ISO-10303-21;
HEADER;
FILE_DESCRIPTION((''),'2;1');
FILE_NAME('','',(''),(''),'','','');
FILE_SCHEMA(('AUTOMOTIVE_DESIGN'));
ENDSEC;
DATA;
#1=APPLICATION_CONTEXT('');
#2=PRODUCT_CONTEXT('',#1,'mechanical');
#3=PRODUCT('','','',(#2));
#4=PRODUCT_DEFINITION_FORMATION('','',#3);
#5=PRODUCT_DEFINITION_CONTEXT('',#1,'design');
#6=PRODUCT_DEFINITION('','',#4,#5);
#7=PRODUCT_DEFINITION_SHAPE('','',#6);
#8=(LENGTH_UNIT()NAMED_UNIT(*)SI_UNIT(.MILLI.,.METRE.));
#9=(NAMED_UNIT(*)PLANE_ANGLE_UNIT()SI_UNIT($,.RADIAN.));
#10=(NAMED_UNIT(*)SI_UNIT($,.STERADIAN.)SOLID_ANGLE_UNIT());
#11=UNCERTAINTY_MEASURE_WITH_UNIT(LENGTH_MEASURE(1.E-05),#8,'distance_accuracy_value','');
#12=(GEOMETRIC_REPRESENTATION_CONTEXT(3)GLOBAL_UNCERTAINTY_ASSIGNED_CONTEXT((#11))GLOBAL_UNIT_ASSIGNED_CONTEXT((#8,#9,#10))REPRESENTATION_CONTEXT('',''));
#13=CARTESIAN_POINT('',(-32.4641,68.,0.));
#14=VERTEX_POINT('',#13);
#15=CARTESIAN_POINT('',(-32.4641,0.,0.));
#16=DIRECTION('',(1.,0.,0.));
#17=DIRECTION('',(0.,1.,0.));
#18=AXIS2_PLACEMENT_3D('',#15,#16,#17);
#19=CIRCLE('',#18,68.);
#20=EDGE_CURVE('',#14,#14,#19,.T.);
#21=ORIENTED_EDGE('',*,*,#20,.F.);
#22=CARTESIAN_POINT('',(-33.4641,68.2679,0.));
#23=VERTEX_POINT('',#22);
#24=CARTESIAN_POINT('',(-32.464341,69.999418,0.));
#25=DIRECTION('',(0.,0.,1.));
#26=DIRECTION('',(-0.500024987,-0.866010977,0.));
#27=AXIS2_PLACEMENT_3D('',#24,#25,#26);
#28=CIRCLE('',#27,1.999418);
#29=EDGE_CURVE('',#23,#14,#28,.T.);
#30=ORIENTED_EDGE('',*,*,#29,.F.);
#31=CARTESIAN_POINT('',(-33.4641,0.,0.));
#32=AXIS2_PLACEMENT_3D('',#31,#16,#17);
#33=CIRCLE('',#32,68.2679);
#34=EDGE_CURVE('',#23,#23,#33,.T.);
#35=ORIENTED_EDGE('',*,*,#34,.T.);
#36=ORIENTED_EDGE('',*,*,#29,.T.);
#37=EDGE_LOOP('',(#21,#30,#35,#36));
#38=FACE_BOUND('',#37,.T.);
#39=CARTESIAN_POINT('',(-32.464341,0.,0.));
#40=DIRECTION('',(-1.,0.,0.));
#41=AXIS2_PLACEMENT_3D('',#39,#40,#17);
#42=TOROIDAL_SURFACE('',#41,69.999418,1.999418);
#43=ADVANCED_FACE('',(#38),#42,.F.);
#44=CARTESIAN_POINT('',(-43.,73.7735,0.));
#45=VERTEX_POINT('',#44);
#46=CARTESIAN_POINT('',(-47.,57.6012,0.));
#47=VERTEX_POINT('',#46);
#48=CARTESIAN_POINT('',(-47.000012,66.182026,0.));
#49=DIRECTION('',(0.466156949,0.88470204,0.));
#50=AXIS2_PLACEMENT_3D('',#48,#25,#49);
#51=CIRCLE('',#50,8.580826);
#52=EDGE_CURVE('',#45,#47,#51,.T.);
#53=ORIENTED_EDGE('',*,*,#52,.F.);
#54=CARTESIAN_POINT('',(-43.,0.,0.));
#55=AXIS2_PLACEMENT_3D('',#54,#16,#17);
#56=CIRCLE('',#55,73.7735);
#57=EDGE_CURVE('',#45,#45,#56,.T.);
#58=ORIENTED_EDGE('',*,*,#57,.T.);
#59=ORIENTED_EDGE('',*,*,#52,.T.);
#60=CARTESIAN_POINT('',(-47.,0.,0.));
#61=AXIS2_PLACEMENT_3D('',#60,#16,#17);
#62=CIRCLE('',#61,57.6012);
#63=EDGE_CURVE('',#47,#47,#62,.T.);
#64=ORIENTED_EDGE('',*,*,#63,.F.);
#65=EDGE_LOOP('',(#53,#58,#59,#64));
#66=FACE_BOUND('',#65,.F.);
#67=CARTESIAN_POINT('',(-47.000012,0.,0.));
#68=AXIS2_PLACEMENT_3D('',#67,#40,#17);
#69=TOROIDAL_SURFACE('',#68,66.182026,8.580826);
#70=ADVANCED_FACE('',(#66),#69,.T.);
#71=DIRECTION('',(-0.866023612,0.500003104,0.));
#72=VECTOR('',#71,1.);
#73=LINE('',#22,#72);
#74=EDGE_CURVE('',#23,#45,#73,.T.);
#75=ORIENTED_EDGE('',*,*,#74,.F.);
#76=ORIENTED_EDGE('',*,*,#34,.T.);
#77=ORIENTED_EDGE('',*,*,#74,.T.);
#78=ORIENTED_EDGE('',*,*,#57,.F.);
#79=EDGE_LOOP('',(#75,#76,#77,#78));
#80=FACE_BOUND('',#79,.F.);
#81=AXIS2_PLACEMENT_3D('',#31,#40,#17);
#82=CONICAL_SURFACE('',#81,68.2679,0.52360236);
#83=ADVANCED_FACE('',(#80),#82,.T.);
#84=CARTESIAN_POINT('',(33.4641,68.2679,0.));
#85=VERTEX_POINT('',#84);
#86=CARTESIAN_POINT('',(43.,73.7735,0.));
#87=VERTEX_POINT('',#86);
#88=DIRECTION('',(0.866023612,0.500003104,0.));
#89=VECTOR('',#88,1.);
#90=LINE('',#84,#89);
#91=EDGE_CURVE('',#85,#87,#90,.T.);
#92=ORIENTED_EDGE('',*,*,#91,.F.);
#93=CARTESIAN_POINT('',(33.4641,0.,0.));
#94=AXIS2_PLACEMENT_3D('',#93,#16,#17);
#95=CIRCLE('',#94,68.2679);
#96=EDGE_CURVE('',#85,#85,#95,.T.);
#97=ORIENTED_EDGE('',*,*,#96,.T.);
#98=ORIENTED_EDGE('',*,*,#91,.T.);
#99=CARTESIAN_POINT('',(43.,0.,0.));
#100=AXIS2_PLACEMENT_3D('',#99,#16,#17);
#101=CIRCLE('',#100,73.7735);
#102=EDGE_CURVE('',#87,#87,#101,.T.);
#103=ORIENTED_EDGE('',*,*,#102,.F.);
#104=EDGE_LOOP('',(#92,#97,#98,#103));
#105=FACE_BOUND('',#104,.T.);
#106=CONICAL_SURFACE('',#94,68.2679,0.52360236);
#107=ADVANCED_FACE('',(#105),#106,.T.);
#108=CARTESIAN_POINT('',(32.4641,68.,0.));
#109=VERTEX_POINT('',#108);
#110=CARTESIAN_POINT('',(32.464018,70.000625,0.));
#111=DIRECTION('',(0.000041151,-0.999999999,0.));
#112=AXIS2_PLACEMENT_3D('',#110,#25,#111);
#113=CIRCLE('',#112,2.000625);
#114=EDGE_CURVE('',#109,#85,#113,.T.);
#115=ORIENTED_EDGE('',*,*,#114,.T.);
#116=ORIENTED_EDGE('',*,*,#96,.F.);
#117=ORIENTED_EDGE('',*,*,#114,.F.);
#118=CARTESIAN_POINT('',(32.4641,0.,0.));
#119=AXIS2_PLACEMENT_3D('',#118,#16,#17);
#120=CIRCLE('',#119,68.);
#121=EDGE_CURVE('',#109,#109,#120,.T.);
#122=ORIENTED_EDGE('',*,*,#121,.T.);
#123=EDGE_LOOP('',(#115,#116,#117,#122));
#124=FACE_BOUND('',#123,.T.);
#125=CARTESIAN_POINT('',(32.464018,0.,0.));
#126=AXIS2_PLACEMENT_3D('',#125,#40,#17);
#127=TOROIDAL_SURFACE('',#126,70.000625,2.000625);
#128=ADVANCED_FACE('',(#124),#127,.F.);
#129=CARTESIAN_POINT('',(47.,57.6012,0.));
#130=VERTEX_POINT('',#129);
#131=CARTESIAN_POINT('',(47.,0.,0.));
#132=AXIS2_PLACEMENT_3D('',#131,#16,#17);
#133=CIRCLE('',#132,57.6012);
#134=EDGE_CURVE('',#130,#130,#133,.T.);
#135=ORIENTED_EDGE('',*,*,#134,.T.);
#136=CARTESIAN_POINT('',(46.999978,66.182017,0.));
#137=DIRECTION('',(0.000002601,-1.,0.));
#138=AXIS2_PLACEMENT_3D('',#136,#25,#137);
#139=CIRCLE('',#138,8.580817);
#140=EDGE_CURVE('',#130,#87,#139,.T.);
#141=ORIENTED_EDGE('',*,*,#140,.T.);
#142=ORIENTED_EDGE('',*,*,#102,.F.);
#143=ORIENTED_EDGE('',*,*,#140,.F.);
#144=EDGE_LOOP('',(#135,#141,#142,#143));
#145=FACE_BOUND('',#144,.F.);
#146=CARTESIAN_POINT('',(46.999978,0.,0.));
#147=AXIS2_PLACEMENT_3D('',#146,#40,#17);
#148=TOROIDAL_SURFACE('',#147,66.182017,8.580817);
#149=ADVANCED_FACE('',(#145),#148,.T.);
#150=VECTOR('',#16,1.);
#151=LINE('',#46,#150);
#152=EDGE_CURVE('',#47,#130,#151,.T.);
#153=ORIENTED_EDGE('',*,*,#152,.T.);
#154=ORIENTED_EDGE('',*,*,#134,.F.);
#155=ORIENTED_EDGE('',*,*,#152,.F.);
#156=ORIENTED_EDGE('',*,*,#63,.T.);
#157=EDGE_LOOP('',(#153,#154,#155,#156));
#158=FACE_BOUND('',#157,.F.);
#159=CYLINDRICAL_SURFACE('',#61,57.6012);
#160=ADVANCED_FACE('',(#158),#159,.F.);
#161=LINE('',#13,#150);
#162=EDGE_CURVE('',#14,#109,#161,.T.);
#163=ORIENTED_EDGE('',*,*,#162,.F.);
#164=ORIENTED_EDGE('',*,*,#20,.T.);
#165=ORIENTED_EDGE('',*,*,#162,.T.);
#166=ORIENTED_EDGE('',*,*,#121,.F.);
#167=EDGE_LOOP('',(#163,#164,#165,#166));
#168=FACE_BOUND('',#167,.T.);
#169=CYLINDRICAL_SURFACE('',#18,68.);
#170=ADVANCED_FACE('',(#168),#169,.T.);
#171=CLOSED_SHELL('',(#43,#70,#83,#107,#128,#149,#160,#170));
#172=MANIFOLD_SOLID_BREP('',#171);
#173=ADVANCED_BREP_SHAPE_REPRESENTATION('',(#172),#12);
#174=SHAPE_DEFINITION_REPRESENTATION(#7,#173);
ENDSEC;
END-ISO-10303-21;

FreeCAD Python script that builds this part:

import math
import FreeCAD as App
import Part
import Sketcher
Q = App.Units.Quantity

doc = App.newDocument("Part")
params = doc.addObject("Spreadsheet::Sheet", "Params")
for row, (alias, value) in enumerate([
    ("sketch1_radius", "2 mm"),
    ("sketch1_width", "94 mm"),
    ("revolution_angle", "360 deg"),
], start=1):
    params.set(f"A{row}", alias)
    params.set(f"B{row}", "=" + value)
    params.setAlias(f"B{row}", alias)

body = doc.addObject("PartDesign::Body", "Body")

# Sketch on XY plane
sketch1 = body.newObject("Sketcher::SketchObject", "Sketch")
sketch1.AttachmentSupport = (doc.getObject("XY_Plane"), [""])
sketch1.MapMode = "FlatFace"
sketch1.addGeometry([
    Part.LineSegment(App.Vector(32.5, 68, 0), App.Vector(-32.5, 68, 0)),  # 0
    Part.ArcOfCircle(Part.Circle(App.Vector(-32.5, 70, 0), App.Vector(0, 0, 1), 2), math.radians(-120), math.radians(-90)),  # 1
    Part.LineSegment(App.Vector(-33.5, 68.3, 0), App.Vector(-43, 73.8, 0)),  # 2
    Part.ArcOfCircle(Part.Circle(App.Vector(-47, 66.2, 0), App.Vector(0, 0, 1), 8.6), math.radians(62), math.radians(270)),  # 3
    Part.LineSegment(App.Vector(-47, 57.6, 0), App.Vector(47, 57.6, 0)),  # 4
    Part.ArcOfCircle(Part.Circle(App.Vector(47, 66.2, 0), App.Vector(0, 0, 1), 8.6), math.radians(-90), math.radians(118)),  # 5
    Part.LineSegment(App.Vector(43, 73.8, 0), App.Vector(33.5, 68.3, 0)),  # 6
    Part.ArcOfCircle(Part.Circle(App.Vector(32.5, 70, 0), App.Vector(0, 0, 1), 2), math.radians(-90), math.radians(-60)),  # 7
], False)
sketch1.addConstraint([
    Sketcher.Constraint("Tangent", 0, 2, 1, 2),
    Sketcher.Constraint("Tangent", 1, 1, 2, 1),
    Sketcher.Constraint("Coincident", 2, 2, 3, 1),
    Sketcher.Constraint("Tangent", 3, 2, 4, 1),
    Sketcher.Constraint("Tangent", 4, 2, 5, 1),
    Sketcher.Constraint("Coincident", 5, 2, 6, 1),
    Sketcher.Constraint("Tangent", 6, 2, 7, 2),
    Sketcher.Constraint("Tangent", 7, 1, 0, 1),
    Sketcher.Constraint("Horizontal", 0),
    Sketcher.Constraint("Horizontal", 4),
    Sketcher.Constraint("Equal", 3, 5),
    Sketcher.Constraint("Equal", 1, 7),
    Sketcher.Constraint("Symmetric", 2, 2, 5, 2, -2),
    Sketcher.Constraint("Horizontal", 1, 1, 6, 2),
    Sketcher.Constraint("Radius", 1, Q("2 mm")),
    Sketcher.Constraint("DistanceX", 4, 1, 4, 2, Q("94 mm")),
    Sketcher.Constraint("Angle", 2, Q("149.9998 deg")),
    Sketcher.Constraint("DistanceY", -1, 1, 1, 3, Q("70 mm")),
    Sketcher.Constraint("DistanceX", 2, 2, -1, 1, Q("43 mm")),
    Sketcher.Constraint("Radius", 3, Q("8.5808 mm")),
    Sketcher.Constraint("DistanceX", 0, 2, 0, 1, Q("64.9282 mm")),
])
sketch1.setExpression("Constraints[14]", "Params.sketch1_radius")
sketch1.setExpression("Constraints[15]", "Params.sketch1_width")
revolution = body.newObject("PartDesign::Revolution", "Revolution")
revolution.Profile = sketch1
revolution.ReferenceAxis = (sketch1, ["H_Axis"])
revolution.setExpression("Angle", "Params.revolution_angle")

doc.recompute()
